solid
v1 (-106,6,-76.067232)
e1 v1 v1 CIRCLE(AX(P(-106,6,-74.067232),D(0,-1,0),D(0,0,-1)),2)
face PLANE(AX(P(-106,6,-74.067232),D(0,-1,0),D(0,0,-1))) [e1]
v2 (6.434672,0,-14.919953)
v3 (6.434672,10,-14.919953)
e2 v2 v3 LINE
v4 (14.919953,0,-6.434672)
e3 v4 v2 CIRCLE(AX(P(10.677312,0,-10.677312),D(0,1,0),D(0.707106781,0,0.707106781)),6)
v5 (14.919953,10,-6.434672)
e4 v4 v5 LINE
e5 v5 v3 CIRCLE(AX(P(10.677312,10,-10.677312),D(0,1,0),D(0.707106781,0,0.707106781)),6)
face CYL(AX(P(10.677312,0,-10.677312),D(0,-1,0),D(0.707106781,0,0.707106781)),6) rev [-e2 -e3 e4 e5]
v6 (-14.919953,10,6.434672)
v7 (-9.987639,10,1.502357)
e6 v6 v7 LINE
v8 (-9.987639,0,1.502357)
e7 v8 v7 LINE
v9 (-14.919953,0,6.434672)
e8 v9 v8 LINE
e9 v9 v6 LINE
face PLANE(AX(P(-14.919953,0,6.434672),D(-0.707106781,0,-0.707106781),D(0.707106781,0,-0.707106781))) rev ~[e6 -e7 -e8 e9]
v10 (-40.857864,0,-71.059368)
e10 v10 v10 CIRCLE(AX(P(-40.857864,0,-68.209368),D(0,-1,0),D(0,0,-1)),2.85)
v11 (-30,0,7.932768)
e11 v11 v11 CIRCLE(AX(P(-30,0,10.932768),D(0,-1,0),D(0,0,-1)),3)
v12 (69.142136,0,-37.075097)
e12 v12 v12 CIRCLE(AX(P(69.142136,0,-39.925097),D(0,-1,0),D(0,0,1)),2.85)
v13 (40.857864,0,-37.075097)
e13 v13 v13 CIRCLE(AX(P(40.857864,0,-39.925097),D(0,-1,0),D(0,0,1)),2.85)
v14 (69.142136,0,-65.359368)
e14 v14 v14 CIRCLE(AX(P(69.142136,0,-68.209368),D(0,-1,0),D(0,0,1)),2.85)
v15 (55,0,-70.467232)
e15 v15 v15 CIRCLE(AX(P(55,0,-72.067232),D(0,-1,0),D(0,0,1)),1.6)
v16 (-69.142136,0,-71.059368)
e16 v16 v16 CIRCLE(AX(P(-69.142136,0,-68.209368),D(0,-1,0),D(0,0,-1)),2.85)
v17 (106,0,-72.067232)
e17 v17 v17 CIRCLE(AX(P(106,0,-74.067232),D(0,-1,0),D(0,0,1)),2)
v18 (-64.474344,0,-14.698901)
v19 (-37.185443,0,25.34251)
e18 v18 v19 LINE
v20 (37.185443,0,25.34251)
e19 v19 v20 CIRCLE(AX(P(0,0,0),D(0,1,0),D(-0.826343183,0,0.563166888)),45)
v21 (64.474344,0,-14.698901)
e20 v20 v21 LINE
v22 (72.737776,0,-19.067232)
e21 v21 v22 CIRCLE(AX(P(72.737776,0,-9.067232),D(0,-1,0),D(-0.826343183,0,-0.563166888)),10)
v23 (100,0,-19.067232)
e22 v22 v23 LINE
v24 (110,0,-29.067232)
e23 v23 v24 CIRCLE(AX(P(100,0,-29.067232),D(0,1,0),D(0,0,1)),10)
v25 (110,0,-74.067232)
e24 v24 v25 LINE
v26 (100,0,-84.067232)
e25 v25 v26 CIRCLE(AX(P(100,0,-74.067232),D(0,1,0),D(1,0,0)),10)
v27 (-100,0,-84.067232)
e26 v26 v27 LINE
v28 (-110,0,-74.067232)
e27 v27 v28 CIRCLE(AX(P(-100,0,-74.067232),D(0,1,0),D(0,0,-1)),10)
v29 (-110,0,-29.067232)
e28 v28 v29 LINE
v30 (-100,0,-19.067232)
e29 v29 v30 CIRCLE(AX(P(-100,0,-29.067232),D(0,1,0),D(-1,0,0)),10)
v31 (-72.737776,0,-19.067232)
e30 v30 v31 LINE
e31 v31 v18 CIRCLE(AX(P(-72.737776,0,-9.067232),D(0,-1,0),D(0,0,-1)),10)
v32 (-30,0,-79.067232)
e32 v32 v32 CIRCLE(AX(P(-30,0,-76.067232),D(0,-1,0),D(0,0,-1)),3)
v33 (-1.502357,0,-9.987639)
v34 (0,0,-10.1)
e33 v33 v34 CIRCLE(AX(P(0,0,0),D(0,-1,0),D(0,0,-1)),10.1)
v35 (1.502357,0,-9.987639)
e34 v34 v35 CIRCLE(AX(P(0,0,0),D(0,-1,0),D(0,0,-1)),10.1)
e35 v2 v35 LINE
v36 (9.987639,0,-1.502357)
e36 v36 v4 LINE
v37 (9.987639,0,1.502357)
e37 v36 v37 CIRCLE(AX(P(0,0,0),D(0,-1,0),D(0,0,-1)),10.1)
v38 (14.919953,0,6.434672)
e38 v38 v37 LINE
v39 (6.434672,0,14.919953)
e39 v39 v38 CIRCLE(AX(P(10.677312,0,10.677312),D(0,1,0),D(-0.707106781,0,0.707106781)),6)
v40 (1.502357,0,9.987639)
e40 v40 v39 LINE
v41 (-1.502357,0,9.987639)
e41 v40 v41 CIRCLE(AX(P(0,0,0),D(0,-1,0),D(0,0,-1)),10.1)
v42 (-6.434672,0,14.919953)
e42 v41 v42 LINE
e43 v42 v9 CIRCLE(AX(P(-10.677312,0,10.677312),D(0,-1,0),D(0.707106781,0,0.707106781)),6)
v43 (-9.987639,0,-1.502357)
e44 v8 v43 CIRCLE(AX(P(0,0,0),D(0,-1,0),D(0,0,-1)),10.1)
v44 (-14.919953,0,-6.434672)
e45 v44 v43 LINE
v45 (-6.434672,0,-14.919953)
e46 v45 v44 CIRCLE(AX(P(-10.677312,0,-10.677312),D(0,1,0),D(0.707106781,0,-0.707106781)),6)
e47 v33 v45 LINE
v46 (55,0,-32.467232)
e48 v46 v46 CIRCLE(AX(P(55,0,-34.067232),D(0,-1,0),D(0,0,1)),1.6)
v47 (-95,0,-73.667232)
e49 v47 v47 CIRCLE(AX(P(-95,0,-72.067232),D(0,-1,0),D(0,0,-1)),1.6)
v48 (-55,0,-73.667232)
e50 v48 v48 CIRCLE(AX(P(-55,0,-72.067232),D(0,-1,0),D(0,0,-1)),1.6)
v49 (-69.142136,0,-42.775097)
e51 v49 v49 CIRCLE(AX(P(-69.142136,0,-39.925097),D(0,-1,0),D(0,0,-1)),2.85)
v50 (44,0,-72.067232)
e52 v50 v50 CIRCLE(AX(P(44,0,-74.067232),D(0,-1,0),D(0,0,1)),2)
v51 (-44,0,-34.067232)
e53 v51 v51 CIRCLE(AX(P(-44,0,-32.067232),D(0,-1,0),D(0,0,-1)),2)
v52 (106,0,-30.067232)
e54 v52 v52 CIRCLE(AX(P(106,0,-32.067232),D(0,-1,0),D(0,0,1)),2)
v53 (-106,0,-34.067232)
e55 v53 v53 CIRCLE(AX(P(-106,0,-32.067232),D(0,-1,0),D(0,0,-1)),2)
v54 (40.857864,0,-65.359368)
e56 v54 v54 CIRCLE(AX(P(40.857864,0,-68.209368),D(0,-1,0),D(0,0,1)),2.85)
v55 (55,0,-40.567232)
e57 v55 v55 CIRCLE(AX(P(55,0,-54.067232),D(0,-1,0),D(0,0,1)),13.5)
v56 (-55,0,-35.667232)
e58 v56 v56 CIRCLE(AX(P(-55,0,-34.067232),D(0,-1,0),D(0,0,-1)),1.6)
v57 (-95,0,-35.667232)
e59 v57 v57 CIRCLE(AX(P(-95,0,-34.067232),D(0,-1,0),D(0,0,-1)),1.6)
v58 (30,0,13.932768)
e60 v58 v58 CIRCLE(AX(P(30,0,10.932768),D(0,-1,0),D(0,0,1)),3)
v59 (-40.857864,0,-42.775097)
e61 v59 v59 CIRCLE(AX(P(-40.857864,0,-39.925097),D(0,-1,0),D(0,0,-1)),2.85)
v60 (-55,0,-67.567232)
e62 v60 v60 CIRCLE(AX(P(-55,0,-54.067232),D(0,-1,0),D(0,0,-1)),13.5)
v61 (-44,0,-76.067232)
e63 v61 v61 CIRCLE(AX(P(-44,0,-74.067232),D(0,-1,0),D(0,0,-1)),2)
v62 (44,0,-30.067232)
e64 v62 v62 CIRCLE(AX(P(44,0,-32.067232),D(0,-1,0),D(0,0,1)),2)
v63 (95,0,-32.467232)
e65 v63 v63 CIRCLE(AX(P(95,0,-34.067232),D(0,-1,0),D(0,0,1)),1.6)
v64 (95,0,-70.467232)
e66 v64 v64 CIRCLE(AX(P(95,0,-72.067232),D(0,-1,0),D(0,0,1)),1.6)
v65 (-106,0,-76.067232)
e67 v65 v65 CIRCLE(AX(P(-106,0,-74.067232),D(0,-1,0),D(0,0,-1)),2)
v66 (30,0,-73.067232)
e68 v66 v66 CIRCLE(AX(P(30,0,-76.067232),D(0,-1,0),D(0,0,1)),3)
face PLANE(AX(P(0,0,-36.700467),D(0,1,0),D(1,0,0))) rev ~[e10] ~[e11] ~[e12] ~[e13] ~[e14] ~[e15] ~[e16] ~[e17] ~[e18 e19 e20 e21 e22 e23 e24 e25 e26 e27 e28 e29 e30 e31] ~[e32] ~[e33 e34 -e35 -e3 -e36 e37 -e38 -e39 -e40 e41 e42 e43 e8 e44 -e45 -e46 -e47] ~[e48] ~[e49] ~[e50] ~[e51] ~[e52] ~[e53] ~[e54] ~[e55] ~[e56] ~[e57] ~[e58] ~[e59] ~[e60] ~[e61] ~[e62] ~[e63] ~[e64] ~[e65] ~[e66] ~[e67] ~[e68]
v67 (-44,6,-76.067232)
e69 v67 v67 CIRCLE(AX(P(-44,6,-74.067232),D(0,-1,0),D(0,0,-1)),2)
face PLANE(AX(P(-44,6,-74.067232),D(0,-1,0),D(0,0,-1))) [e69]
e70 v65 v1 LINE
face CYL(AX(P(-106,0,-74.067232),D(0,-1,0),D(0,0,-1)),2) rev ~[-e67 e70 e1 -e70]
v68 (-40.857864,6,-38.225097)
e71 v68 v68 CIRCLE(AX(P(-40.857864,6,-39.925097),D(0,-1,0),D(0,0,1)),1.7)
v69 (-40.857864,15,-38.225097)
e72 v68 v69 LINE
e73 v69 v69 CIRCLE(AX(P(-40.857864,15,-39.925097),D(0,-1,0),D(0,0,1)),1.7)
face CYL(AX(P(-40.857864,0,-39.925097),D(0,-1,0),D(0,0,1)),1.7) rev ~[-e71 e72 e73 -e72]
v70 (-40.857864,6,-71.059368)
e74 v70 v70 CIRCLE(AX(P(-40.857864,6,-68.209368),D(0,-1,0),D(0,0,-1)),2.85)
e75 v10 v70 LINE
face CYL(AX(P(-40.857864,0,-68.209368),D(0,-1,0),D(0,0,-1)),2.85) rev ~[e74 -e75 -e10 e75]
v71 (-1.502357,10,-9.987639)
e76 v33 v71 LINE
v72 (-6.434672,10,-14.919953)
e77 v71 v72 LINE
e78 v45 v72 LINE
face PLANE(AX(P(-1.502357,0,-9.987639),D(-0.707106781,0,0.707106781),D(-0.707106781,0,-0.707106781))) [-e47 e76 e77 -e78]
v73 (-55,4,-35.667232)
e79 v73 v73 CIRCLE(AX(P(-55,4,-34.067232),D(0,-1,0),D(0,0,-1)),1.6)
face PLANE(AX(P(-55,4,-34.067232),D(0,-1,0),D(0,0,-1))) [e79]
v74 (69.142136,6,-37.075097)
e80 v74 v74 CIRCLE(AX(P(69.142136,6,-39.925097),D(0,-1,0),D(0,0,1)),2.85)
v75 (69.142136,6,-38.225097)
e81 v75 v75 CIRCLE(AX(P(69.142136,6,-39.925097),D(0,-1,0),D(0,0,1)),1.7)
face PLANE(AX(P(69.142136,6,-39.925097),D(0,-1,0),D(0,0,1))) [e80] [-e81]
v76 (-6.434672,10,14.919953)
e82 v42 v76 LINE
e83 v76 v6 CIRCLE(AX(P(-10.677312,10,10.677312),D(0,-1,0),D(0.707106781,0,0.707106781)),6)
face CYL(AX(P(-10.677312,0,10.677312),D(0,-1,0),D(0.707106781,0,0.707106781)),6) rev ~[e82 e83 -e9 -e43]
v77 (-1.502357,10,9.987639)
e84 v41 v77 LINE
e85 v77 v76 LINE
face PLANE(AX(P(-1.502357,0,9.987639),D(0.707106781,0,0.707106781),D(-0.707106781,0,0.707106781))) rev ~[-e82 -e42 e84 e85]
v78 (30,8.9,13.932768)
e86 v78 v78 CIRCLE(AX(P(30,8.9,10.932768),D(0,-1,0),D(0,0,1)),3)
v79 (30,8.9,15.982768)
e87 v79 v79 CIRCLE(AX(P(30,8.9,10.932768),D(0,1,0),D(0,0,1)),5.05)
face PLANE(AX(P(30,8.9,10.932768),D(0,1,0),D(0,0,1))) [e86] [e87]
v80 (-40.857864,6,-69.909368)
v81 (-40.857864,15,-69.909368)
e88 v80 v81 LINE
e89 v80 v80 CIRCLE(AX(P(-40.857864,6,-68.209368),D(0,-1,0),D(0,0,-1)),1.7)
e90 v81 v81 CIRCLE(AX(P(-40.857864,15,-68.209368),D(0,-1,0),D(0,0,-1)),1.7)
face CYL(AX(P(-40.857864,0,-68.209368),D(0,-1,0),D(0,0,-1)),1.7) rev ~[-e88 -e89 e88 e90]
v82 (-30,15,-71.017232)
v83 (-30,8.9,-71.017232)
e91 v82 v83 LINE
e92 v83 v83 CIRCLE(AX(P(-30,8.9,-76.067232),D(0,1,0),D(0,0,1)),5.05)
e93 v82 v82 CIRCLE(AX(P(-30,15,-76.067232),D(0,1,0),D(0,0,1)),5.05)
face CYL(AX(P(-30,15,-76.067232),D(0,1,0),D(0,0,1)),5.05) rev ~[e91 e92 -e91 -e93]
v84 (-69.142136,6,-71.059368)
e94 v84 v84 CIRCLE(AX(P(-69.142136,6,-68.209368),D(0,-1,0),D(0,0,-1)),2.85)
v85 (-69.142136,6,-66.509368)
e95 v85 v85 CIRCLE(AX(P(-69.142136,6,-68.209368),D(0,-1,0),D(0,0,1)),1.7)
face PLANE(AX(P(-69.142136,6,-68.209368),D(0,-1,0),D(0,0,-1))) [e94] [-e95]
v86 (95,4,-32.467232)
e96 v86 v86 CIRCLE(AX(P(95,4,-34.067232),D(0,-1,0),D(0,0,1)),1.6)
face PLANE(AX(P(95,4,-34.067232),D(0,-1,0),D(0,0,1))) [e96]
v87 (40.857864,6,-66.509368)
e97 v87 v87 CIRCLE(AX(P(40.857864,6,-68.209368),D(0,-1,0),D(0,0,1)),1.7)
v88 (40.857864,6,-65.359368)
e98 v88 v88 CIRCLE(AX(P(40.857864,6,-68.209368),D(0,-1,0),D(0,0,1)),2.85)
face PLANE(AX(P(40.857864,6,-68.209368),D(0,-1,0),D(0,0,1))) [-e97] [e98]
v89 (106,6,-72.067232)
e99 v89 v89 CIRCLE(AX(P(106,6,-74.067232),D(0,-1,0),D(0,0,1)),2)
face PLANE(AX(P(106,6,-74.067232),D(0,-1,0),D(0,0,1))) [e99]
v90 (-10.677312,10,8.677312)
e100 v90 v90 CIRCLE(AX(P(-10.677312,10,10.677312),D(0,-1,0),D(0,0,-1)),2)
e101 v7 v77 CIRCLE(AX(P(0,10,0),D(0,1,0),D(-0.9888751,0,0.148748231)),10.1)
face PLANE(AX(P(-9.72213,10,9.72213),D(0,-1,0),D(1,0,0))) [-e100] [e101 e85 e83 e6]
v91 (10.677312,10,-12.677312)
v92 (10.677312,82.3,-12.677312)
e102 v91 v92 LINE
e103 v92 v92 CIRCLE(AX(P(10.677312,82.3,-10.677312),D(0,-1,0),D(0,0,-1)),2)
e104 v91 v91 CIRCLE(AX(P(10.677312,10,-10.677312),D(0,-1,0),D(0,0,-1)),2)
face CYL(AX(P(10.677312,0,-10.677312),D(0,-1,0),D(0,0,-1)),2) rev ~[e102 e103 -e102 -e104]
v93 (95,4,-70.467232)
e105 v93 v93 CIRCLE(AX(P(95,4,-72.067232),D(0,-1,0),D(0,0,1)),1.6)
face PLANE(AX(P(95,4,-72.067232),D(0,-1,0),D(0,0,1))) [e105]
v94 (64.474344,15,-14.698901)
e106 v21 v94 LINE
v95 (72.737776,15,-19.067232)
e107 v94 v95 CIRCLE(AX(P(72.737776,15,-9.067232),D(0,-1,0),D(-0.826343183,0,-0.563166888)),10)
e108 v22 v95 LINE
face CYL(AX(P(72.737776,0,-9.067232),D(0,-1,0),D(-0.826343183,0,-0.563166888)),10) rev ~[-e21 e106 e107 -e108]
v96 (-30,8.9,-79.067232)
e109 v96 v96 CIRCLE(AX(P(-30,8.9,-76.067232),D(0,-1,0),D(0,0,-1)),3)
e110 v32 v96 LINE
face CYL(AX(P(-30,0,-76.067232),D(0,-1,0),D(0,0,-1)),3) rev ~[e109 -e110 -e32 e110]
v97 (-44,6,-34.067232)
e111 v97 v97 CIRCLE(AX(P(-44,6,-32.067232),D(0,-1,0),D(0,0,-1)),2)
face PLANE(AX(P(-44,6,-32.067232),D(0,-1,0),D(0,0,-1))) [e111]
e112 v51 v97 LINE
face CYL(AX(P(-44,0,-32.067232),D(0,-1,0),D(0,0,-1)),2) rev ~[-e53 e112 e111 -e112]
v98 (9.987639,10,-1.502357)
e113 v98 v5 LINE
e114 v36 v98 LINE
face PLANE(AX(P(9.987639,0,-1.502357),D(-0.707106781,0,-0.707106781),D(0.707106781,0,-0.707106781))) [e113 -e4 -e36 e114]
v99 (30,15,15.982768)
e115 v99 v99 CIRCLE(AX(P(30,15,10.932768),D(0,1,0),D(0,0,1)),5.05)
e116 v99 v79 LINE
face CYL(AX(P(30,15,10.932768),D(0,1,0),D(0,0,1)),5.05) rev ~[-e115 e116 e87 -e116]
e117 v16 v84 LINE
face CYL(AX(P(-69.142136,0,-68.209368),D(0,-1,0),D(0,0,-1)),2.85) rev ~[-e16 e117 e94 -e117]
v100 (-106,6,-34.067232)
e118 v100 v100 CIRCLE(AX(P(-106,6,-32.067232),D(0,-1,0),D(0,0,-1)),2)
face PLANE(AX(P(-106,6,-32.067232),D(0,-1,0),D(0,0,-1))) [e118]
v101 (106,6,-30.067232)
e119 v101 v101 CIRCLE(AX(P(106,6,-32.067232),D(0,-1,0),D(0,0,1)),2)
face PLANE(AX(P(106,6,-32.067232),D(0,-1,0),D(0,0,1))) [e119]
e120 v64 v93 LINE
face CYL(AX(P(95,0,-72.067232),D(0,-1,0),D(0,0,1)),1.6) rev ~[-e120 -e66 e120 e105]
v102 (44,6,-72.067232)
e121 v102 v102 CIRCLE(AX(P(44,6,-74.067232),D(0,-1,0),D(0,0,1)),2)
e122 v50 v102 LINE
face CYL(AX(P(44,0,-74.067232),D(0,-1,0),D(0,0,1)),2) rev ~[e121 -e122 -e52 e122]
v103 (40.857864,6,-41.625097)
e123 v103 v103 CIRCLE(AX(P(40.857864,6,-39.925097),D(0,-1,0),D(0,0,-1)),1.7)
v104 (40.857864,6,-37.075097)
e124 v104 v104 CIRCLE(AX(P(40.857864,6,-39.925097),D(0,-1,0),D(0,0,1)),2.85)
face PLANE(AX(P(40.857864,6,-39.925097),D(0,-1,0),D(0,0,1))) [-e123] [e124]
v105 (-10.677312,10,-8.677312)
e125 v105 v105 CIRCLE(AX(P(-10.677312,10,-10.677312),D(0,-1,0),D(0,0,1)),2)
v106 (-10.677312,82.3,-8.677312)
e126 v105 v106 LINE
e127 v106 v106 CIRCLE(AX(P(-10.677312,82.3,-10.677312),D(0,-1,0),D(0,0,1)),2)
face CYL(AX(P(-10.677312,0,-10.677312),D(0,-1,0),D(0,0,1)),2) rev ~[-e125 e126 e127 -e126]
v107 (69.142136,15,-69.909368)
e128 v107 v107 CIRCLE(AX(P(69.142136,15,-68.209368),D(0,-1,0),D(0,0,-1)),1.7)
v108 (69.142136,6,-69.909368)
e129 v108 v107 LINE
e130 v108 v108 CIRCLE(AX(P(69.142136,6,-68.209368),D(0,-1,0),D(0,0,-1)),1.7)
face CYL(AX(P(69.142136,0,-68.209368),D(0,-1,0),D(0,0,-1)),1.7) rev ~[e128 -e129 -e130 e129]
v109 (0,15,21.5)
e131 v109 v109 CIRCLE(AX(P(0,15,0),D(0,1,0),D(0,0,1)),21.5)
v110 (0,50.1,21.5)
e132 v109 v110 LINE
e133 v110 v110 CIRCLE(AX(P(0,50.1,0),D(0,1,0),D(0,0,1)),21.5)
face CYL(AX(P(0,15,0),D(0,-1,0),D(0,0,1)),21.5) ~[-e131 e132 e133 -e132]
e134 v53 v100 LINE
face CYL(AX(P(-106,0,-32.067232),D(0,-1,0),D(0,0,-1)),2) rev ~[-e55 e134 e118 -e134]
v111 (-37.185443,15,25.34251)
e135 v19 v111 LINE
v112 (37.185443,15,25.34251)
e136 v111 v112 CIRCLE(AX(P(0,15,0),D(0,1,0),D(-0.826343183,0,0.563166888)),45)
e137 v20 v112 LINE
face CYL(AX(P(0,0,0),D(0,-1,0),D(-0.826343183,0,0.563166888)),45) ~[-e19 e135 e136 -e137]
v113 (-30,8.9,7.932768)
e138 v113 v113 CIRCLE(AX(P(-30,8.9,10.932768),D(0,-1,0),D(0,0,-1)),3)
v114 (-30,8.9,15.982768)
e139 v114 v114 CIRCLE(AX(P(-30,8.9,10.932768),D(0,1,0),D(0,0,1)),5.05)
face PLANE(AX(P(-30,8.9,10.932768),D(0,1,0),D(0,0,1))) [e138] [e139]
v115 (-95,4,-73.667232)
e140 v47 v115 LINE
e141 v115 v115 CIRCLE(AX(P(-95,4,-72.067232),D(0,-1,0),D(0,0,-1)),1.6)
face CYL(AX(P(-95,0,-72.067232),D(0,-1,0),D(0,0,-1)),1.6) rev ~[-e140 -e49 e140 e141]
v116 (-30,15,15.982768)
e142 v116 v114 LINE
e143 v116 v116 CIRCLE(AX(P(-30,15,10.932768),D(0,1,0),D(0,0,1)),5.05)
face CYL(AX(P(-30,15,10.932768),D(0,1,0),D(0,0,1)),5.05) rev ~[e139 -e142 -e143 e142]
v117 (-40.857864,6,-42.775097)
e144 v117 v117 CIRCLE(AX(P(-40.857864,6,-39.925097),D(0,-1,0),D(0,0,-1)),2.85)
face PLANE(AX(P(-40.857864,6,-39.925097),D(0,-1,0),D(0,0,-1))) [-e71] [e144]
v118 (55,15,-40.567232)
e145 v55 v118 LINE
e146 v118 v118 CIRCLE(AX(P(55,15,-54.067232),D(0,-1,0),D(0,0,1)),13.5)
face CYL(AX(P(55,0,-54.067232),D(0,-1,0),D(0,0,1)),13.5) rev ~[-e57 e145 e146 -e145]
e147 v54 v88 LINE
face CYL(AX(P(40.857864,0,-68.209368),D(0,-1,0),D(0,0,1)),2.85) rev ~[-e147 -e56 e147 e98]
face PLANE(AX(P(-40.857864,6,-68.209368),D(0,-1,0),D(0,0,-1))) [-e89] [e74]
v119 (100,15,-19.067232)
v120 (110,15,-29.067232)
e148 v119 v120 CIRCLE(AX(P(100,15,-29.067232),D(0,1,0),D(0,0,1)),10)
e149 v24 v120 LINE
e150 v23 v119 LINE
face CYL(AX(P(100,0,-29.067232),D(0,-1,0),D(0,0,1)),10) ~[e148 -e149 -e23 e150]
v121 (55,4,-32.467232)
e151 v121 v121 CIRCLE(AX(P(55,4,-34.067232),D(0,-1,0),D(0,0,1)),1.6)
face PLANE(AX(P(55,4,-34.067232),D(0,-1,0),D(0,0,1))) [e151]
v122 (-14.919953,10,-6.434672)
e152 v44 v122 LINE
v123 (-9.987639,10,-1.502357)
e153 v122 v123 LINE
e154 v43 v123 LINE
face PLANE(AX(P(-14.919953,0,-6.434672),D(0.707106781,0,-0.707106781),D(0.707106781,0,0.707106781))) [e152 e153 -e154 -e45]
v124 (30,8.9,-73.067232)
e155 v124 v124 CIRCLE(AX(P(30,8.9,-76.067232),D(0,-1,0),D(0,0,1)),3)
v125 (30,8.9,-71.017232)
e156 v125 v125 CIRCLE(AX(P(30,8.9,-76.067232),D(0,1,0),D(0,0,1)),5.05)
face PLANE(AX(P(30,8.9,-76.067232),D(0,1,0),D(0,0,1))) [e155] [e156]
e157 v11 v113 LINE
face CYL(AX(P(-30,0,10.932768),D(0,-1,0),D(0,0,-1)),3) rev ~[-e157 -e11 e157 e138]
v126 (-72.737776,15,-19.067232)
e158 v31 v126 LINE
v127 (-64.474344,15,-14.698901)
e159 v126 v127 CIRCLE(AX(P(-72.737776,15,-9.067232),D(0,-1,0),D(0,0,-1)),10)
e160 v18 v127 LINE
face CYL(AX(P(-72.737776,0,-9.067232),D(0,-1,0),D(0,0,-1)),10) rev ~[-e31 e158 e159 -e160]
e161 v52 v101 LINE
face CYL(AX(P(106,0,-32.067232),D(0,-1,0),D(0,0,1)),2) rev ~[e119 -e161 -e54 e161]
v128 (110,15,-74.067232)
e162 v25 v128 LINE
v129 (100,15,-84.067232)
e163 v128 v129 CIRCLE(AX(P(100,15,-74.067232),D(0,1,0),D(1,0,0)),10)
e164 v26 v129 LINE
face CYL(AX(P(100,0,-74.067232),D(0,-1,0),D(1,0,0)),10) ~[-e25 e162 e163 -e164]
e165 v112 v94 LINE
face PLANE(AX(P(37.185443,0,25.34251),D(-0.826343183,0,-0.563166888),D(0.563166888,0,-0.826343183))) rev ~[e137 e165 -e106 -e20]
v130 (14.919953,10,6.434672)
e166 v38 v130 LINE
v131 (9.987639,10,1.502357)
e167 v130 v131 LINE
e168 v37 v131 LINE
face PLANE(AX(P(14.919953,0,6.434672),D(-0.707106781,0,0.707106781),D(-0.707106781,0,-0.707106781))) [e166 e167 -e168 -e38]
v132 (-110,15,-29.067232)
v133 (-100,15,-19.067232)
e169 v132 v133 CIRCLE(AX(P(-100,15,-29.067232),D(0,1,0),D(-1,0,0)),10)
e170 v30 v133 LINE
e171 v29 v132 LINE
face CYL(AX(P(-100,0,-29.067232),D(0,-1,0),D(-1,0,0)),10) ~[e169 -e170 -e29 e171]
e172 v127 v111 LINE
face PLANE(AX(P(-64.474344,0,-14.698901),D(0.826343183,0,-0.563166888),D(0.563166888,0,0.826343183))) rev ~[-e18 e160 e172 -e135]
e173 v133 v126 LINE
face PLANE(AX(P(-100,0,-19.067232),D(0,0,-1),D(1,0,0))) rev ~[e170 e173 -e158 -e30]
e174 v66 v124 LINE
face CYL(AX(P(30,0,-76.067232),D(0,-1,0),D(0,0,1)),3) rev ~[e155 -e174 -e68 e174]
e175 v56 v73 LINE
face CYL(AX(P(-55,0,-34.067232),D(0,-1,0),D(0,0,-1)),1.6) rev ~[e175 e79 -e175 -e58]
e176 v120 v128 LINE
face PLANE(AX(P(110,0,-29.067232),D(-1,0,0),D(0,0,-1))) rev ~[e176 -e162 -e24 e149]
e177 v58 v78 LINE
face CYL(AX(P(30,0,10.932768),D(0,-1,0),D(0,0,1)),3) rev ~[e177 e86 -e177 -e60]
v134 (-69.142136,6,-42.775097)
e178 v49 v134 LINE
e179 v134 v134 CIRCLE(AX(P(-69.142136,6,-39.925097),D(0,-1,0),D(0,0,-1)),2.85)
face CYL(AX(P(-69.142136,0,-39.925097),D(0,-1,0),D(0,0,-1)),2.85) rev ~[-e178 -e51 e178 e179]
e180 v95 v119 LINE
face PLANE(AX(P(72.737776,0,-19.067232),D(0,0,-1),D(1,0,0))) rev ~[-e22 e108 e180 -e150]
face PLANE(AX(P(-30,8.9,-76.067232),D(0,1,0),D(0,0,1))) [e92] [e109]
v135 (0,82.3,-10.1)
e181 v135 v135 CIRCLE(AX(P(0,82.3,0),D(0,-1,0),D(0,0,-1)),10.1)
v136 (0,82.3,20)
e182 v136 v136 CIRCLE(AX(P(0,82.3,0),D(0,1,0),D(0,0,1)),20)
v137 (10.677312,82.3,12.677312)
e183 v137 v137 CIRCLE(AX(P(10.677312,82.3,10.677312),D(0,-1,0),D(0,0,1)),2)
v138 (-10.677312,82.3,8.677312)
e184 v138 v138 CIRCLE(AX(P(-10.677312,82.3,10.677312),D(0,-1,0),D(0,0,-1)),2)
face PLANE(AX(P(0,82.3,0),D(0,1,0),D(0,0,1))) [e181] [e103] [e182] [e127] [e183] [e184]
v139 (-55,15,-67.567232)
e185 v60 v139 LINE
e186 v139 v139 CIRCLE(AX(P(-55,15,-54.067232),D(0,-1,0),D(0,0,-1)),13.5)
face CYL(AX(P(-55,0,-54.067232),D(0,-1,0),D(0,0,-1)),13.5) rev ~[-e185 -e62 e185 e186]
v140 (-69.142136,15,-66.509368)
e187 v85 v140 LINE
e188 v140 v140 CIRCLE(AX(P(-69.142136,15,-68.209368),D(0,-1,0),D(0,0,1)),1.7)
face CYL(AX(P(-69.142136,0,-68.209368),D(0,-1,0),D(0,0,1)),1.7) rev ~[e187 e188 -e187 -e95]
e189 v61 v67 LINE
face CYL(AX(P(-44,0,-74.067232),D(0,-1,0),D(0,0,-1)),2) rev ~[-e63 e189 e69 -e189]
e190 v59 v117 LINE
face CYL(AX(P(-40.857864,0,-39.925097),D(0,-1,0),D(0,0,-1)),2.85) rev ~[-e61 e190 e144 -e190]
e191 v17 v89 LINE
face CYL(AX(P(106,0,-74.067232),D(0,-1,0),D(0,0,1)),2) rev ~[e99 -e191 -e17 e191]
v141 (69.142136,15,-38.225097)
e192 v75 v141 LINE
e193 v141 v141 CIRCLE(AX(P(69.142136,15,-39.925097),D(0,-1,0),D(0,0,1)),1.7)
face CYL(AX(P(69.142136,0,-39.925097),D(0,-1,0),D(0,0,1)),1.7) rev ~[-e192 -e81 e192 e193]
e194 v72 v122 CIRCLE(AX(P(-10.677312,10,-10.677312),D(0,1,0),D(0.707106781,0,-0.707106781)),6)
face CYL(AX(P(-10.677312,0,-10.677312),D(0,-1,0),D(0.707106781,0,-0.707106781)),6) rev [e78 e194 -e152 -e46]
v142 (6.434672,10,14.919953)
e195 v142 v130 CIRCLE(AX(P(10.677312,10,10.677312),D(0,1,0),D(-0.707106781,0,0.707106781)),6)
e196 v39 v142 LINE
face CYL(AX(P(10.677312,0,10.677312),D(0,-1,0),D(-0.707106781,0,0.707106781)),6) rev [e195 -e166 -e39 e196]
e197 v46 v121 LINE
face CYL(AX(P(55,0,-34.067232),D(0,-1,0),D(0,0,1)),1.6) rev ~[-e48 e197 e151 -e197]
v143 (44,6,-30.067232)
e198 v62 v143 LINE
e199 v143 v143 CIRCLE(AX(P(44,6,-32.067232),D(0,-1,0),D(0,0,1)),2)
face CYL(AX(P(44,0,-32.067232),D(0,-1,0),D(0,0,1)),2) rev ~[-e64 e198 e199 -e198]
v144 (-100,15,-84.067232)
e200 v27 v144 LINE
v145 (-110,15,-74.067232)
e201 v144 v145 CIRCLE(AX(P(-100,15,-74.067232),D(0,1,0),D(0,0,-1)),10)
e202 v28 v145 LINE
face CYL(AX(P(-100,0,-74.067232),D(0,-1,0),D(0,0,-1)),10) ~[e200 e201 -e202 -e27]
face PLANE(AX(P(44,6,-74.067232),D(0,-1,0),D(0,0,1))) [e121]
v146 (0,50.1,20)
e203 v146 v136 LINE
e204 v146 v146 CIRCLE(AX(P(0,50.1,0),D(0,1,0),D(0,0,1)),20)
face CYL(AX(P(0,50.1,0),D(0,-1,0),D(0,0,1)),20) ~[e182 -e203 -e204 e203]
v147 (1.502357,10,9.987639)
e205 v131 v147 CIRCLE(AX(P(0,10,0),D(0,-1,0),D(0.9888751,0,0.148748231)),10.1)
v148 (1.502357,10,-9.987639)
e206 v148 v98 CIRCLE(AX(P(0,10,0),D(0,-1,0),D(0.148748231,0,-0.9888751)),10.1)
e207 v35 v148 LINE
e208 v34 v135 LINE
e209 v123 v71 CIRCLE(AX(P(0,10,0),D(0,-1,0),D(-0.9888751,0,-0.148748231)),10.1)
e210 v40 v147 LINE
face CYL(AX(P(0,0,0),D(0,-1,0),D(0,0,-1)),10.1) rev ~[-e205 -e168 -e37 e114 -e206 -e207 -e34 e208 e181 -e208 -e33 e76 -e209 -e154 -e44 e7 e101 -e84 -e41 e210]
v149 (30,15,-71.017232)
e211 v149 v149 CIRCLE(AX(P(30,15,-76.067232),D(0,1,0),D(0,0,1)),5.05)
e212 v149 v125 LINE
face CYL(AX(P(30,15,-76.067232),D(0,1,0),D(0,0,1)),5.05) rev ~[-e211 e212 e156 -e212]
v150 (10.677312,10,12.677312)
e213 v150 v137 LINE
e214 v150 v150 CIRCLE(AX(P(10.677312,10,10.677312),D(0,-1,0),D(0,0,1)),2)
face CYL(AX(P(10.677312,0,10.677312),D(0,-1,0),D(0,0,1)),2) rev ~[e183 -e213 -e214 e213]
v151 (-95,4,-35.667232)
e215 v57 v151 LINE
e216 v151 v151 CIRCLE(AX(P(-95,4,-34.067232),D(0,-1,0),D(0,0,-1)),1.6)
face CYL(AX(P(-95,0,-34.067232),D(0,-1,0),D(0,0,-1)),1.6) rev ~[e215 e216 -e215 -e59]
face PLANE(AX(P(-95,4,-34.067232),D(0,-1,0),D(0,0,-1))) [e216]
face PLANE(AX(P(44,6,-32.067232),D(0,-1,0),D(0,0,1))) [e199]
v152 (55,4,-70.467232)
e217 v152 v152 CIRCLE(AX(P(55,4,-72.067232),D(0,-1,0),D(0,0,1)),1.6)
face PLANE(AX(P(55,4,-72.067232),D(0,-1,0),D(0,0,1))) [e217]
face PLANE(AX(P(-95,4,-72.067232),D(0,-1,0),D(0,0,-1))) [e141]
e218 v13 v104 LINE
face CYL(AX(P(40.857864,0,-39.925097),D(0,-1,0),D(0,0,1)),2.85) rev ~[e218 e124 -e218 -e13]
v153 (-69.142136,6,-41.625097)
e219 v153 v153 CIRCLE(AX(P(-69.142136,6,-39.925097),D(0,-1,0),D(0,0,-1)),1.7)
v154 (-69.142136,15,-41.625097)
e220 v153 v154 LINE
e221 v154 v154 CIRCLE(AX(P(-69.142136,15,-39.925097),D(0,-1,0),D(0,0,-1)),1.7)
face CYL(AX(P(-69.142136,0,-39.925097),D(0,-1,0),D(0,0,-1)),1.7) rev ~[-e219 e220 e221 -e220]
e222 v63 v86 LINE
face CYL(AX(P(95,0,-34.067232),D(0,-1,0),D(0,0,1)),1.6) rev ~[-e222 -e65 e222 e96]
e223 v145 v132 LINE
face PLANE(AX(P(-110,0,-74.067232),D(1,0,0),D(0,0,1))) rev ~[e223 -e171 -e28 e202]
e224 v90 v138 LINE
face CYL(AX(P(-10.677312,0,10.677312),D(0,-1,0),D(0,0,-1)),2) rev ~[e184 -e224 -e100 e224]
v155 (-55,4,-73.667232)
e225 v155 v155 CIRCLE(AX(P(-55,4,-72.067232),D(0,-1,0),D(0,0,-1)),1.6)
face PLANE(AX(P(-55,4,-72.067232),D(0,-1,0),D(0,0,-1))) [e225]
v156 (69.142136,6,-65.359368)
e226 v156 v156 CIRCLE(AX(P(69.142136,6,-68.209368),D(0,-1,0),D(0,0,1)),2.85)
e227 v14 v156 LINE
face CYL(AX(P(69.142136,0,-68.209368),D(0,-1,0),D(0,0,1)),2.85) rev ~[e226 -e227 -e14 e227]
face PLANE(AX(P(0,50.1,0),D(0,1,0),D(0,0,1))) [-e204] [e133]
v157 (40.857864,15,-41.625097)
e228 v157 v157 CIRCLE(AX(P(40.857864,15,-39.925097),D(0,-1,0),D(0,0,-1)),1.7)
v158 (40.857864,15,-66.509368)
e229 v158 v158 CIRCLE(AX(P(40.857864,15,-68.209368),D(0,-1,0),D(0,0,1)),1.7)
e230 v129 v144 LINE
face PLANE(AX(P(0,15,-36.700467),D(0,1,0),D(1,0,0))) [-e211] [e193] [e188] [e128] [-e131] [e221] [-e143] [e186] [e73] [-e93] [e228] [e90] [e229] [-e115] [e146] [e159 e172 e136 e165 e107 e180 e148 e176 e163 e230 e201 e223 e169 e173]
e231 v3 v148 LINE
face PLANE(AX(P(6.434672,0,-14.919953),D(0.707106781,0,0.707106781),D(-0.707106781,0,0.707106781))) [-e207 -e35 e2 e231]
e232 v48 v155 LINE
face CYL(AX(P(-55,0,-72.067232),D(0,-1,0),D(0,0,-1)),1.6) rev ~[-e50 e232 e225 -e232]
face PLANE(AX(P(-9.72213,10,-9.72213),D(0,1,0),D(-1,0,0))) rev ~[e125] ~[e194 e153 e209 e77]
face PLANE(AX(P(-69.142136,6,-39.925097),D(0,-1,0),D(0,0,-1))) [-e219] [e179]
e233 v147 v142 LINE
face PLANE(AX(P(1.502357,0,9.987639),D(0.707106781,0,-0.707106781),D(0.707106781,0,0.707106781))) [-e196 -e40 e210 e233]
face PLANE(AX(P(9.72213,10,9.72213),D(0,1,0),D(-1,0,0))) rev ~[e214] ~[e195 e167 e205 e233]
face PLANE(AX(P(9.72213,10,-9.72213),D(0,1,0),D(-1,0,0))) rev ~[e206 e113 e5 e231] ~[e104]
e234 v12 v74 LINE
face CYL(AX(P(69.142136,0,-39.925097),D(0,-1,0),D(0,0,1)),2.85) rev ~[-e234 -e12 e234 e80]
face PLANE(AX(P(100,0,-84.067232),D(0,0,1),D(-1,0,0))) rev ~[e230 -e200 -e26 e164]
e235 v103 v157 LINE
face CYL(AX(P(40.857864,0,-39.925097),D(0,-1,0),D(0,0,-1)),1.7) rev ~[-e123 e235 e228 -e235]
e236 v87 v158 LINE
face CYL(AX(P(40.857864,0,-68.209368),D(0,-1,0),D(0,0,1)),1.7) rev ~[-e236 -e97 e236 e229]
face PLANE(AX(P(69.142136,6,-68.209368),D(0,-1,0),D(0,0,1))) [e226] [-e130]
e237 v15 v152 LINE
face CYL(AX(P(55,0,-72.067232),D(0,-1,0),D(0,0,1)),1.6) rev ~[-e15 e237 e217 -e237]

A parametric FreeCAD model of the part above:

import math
import FreeCAD as App
import Part
import Sketcher
from FreeCAD import Vector
Q = App.Units.Quantity

doc = App.newDocument("Part")
body = doc.addObject("PartDesign::Body", "Body")

# Sketch on XZ plane
sketch1 = body.newObject("Sketcher::SketchObject", "Sketch")
sketch1.AttachmentSupport = (doc.getObject("XZ_Plane"), [""])
sketch1.MapMode = "FlatFace"
sketch1.addGeometry([
    Part.ArcOfCircle(Part.Circle(Vector(-100, -74, 0), Vector(0, 0, 1), 10), math.radians(180), math.radians(270)),  # 0
    Part.LineSegment(Vector(-110, -74, 0), Vector(-110, -29, 0)),  # 1
    Part.ArcOfCircle(Part.Circle(Vector(-100, -29, 0), Vector(0, 0, 1), 10), math.radians(90), math.radians(180)),  # 2
    Part.LineSegment(Vector(-100, -19, 0), Vector(-73, -19, 0)),  # 3
    Part.ArcOfCircle(Part.Circle(Vector(-73, -9, 0), Vector(0, 0, 1), 10), math.radians(-90), math.radians(-34)),  # 4
    Part.LineSegment(Vector(-64, -15, 0), Vector(-37, 25, 0)),  # 5
    Part.ArcOfCircle(Part.Circle(Vector(0, 0, 0), Vector(0, 0, 1), 45), math.radians(34), math.radians(146)),  # 6
    Part.LineSegment(Vector(37, 25, 0), Vector(64, -15, 0)),  # 7
    Part.ArcOfCircle(Part.Circle(Vector(73, -9, 0), Vector(0, 0, 1), 10), math.radians(-146), math.radians(-90)),  # 8
    Part.LineSegment(Vector(73, -19, 0), Vector(100, -19, 0)),  # 9
    Part.ArcOfCircle(Part.Circle(Vector(100, -29, 0), Vector(0, 0, 1), 10), math.radians(0), math.radians(90)),  # 10
    Part.LineSegment(Vector(110, -29, 0), Vector(110, -74, 0)),  # 11
    Part.ArcOfCircle(Part.Circle(Vector(100, -74, 0), Vector(0, 0, 1), 10), math.radians(-90), math.radians(0)),  # 12
    Part.LineSegment(Vector(100, -84, 0), Vector(-100, -84, 0)),  # 13
], False)
sketch1.addConstraint([
    Sketcher.Constraint("Tangent", 0, 1, 1, 1),
    Sketcher.Constraint("Tangent", 1, 2, 2, 2),
    Sketcher.Constraint("Tangent", 2, 1, 3, 1),
    Sketcher.Constraint("Tangent", 3, 2, 4, 1),
    Sketcher.Constraint("Tangent", 4, 2, 5, 1),
    Sketcher.Constraint("Tangent", 5, 2, 6, 2),
    Sketcher.Constraint("Tangent", 6, 1, 7, 1),
    Sketcher.Constraint("Tangent", 7, 2, 8, 1),
    Sketcher.Constraint("Tangent", 8, 2, 9, 1),
    Sketcher.Constraint("Tangent", 9, 2, 10, 2),
    Sketcher.Constraint("Tangent", 10, 1, 11, 1),
    Sketcher.Constraint("Tangent", 11, 2, 12, 2),
    Sketcher.Constraint("Tangent", 12, 1, 13, 1),
    Sketcher.Constraint("Tangent", 13, 2, 0, 2),
    Sketcher.Constraint("Vertical", 1),
    Sketcher.Constraint("Horizontal", 3),
    Sketcher.Constraint("Horizontal", 9),
    Sketcher.Constraint("Vertical", 11),
    Sketcher.Constraint("Horizontal", 13),
    Sketcher.Constraint("Coincident", 6, 3, -1, 1),
    Sketcher.Constraint("Equal", 0, 2),
    Sketcher.Constraint("Equal", 2, 4),
    Sketcher.Constraint("Equal", 4, 8),
    Sketcher.Constraint("Equal", 8, 10),
    Sketcher.Constraint("Equal", 10, 12),
    Sketcher.Constraint("Symmetric", 4, 3, 8, 3, -2),
    Sketcher.Constraint("Equal", 3, 9),
    Sketcher.Constraint("Radius", 0, Q("10 mm")),
    Sketcher.Constraint("Radius", 6, Q("45 mm")),
    Sketcher.Constraint("DistanceX", 13, 2, 13, 1, Q("200 mm")),
    Sketcher.Constraint("DistanceY", 1, 1, 1, 2, Q("45 mm")),
    Sketcher.Constraint("DistanceY", 4, 2, -1, 1, Q("14.698901 mm")),
    Sketcher.Constraint("DistanceX", 4, 2, 5, 2, Q("27.288901 mm")),
])
pad1 = body.newObject("PartDesign::Pad", "Pad")
pad1.Profile = sketch1
pad1.Length = 15
pad1.Reversed = True

# Sketch on XZ plane
sketch2 = body.newObject("Sketcher::SketchObject", "Sketch001")
sketch2.AttachmentSupport = (doc.getObject("XZ_Plane"), [""])
sketch2.MapMode = "FlatFace"
sketch2.AttachmentOffset = App.Placement(Vector(0, 0, -15), App.Rotation())
sketch2.addGeometry(Part.Circle(Vector(0, 0, 0), Vector(0, 0, 1), 22), False)
sketch2.addConstraint([
    Sketcher.Constraint("Coincident", 0, 3, -1, 1),
    Sketcher.Constraint("Diameter", 0, Q("43 mm")),
])
pad2 = body.newObject("PartDesign::Pad", "Pad001")
pad2.Profile = sketch2
pad2.Length = 67.3
pad2.Reversed = True

# Sketch on XZ plane
sketch3 = body.newObject("Sketcher::SketchObject", "Sketch002")
sketch3.AttachmentSupport = (doc.getObject("XZ_Plane"), [""])
sketch3.MapMode = "FlatFace"
sketch3.addGeometry([
    Part.Circle(Vector(0, 0, 0), Vector(0, 0, 1), 10.1),  # 0
    Part.Circle(Vector(-55, -54.1, 0), Vector(0, 0, 1), 13.5),  # 1
    Part.Circle(Vector(-10.7, 10.7, 0), Vector(0, 0, 1), 2),  # 2
    Part.Circle(Vector(-10.7, -10.7, 0), Vector(0, 0, 1), 2),  # 3
    Part.Circle(Vector(-69.1, -39.9, 0), Vector(0, 0, 1), 1.7),  # 4
    Part.Circle(Vector(-69.1, -68.2, 0), Vector(0, 0, 1), 1.7),  # 5
    Part.Circle(Vector(-40.9, -68.2, 0), Vector(0, 0, 1), 1.7),  # 6
    Part.Circle(Vector(-40.9, -39.9, 0), Vector(0, 0, 1), 1.7),  # 7
    Part.Circle(Vector(55, -54.1, 0), Vector(0, 0, 1), 13.5),  # 8
    Part.Circle(Vector(69.1, -68.2, 0), Vector(0, 0, 1), 1.7),  # 9
    Part.Circle(Vector(40.9, -68.2, 0), Vector(0, 0, 1), 1.7),  # 10
    Part.Circle(Vector(40.9, -39.9, 0), Vector(0, 0, 1), 1.7),  # 11
    Part.Circle(Vector(69.1, -39.9, 0), Vector(0, 0, 1), 1.7),  # 12
    Part.Circle(Vector(10.7, -10.7, 0), Vector(0, 0, 1), 2),  # 13
    Part.Circle(Vector(10.7, 10.7, 0), Vector(0, 0, 1), 2),  # 14
    Part.Circle(Vector(-30, -76.1, 0), Vector(0, 0, 1), 3),  # 15
    Part.Circle(Vector(-30, 10.9, 0), Vector(0, 0, 1), 3),  # 16
    Part.Circle(Vector(30, -76.1, 0), Vector(0, 0, 1), 3),  # 17
    Part.Circle(Vector(30, 10.9, 0), Vector(0, 0, 1), 3),  # 18
], False)
sketch3.addConstraint([
    Sketcher.Constraint("Coincident", 0, 3, -1, 1),
    Sketcher.Constraint("Equal", 2, 3),
    Sketcher.Constraint("Equal", 4, 5),
    Sketcher.Constraint("Equal", 5, 6),
    Sketcher.Constraint("Equal", 6, 7),
    Sketcher.Constraint("Equal", 1, 8),
    Sketcher.Constraint("Equal", 7, 9),
    Sketcher.Constraint("Equal", 9, 10),
    Sketcher.Constraint("Equal", 10, 11),
    Sketcher.Constraint("Equal", 11, 12),
    Sketcher.Constraint("Equal", 3, 13),
    Sketcher.Constraint("Equal", 13, 14),
    Sketcher.Constraint("Equal", 15, 16),
    Sketcher.Constraint("Equal", 16, 17),
    Sketcher.Constraint("Equal", 17, 18),
    Sketcher.Constraint("Symmetric", 2, 3, 13, 3, -1, 1),
    Sketcher.Constraint("Symmetric", 3, 3, 14, 3, -1, 1),
    Sketcher.Constraint("Symmetric", 1, 3, 8, 3, -2),
    Sketcher.Constraint("Symmetric", 5, 3, 9, 3, -2),
    Sketcher.Constraint("Symmetric", 6, 3, 10, 3, -2),
    Sketcher.Constraint("Symmetric", 7, 3, 11, 3, -2),
    Sketcher.Constraint("Symmetric", 4, 3, 12, 3, -2),
    Sketcher.Constraint("Symmetric", 3, 3, 13, 3, -2),
    Sketcher.Constraint("Symmetric", 15, 3, 17, 3, -2),
    Sketcher.Constraint("Symmetric", 16, 3, 18, 3, -2),
    Sketcher.Constraint("Horizontal", 5, 3, 6, 3),
    Sketcher.Constraint("Horizontal", 4, 3, 7, 3),
    Sketcher.Constraint("Vertical", 4, 3, 5, 3),
    Sketcher.Constraint("Vertical", 6, 3, 7, 3),
    Sketcher.Constraint("Vertical", 15, 3, 16, 3),
    Sketcher.Constraint("Diameter", 1, Q("27 mm")),
    Sketcher.Constraint("Diameter", 2, Q("4 mm")),
    Sketcher.Constraint("Diameter", 15, Q("6 mm")),
    Sketcher.Constraint("Diameter", 0, Q("20.2 mm")),
    Sketcher.Constraint("Diameter", 4, Q("3.4 mm")),
    Sketcher.Constraint("DistanceX", 1, 3, -1, 1, Q("55 mm")),
    Sketcher.Constraint("DistanceX", 15, 3, -1, 1, Q("30 mm")),
    Sketcher.Constraint("DistanceX", 6, 3, 9, 3, Q("110 mm")),
    Sketcher.Constraint("DistanceY", 15, 3, 1, 3, Q("22 mm")),
    Sketcher.Constraint("DistanceY", 5, 3, -1, 1, Q("68.209368 mm")),
    Sketcher.Constraint("DistanceY", 1, 3, 3, 3, Q("43.38992 mm")),
    Sketcher.Constraint("DistanceY", 4, 3, 2, 3, Q("50.602409 mm")),
    Sketcher.Constraint("DistanceY", 5, 3, 4, 3, Q("28.284271 mm")),
    Sketcher.Constraint("DistanceX", 5, 3, 6, 3, Q("28.284271 mm")),
    Sketcher.Constraint("DistanceX", 6, 3, 3, 3, Q("30.180552 mm")),
    Sketcher.Constraint("DistanceY", 3, 3, 16, 3, Q("21.61008 mm")),
])
pocket1 = body.newObject("PartDesign::Pocket", "Pocket")
pocket1.Profile = sketch3
pocket1.Type = "ThroughAll"

# Sketch on XZ plane
sketch4 = body.newObject("Sketcher::SketchObject", "Sketch003")
sketch4.AttachmentSupport = (doc.getObject("XZ_Plane"), [""])
sketch4.MapMode = "FlatFace"
sketch4.addGeometry([
    Part.LineSegment(Vector(-15, 6, 0), Vector(-10, 2, 0)),  # 0
    Part.ArcOfCircle(Part.Circle(Vector(0, 0, 0), Vector(0, 0, 1), 10), math.radians(99), math.radians(171)),  # 1
    Part.LineSegment(Vector(-2, 10, 0), Vector(-6, 15, 0)),  # 2
    Part.ArcOfCircle(Part.Circle(Vector(-11, 11, 0), Vector(0, 0, 1), 6), math.radians(45), math.radians(225)),  # 3
    Part.LineSegment(Vector(-10, -2, 0), Vector(-15, -6, 0)),  # 4
    Part.ArcOfCircle(Part.Circle(Vector(-11, -11, 0), Vector(0, 0, 1), 6), math.radians(135), math.radians(315)),  # 5
    Part.LineSegment(Vector(-6, -15, 0), Vector(-2, -10, 0)),  # 6
    Part.ArcOfCircle(Part.Circle(Vector(0, 0, 0), Vector(0, 0, 1), 10), math.radians(-171), math.radians(-99)),  # 7
    Part.LineSegment(Vector(2, -10, 0), Vector(6, -15, 0)),  # 8
    Part.ArcOfCircle(Part.Circle(Vector(11, -11, 0), Vector(0, 0, 1), 6), math.radians(-135), math.radians(45)),  # 9
    Part.LineSegment(Vector(15, -6, 0), Vector(10, -2, 0)),  # 10
    Part.ArcOfCircle(Part.Circle(Vector(0, 0, 0), Vector(0, 0, 1), 10), math.radians(-81), math.radians(-9)),  # 11
    Part.LineSegment(Vector(10, 2, 0), Vector(15, 6, 0)),  # 12
    Part.ArcOfCircle(Part.Circle(Vector(11, 11, 0), Vector(0, 0, 1), 6), math.radians(-45), math.radians(135)),  # 13
    Part.LineSegment(Vector(6, 15, 0), Vector(2, 10, 0)),  # 14
    Part.ArcOfCircle(Part.Circle(Vector(0, 0, 0), Vector(0, 0, 1), 10), math.radians(9), math.radians(81)),  # 15
], False)
sketch4.addConstraint([
    Sketcher.Constraint("Coincident", 0, 2, 1, 2),
    Sketcher.Constraint("Coincident", 1, 1, 2, 1),
    Sketcher.Constraint("Tangent", 2, 2, 3, 1),
    Sketcher.Constraint("Tangent", 3, 2, 0, 1),
    Sketcher.Constraint("Tangent", 4, 2, 5, 1),
    Sketcher.Constraint("Tangent", 5, 2, 6, 1),
    Sketcher.Constraint("Coincident", 6, 2, 7, 2),
    Sketcher.Constraint("Coincident", 7, 1, 4, 1),
    Sketcher.Constraint("Tangent", 8, 2, 9, 1),
    Sketcher.Constraint("Tangent", 9, 2, 10, 1),
    Sketcher.Constraint("Coincident", 10, 2, 11, 2),
    Sketcher.Constraint("Coincident", 11, 1, 8, 1),
    Sketcher.Constraint("Tangent", 12, 2, 13, 1),
    Sketcher.Constraint("Tangent", 13, 2, 14, 1),
    Sketcher.Constraint("Coincident", 14, 2, 15, 2),
    Sketcher.Constraint("Coincident", 15, 1, 12, 1),
    Sketcher.Constraint("Coincident", 1, 3, -1, 1),
    Sketcher.Constraint("Coincident", 7, 3, -1, 1),
    Sketcher.Constraint("Coincident", 11, 3, -1, 1),
    Sketcher.Constraint("Coincident", 15, 3, -1, 1),
    Sketcher.Constraint("Equal", 3, 5),
    Sketcher.Constraint("Equal", 1, 7),
    Sketcher.Constraint("Equal", 5, 9),
    Sketcher.Constraint("Equal", 7, 11),
    Sketcher.Constraint("Equal", 9, 13),
    Sketcher.Constraint("Equal", 11, 15),
    Sketcher.Constraint("Symmetric", 3, 3, 9, 3, -1, 1),
    Sketcher.Constraint("Symmetric", 5, 3, 13, 3, -1, 1),
    Sketcher.Constraint("Symmetric", 5, 3, 9, 3, -2),
    Sketcher.Constraint("Parallel", 0, 2),
    Sketcher.Constraint("Perpendicular", 2, 4),
    Sketcher.Constraint("Parallel", 4, 6),
    Sketcher.Constraint("Perpendicular", 6, 8),
    Sketcher.Constraint("Parallel", 8, 10),
    Sketcher.Constraint("Perpendicular", 10, 12),
    Sketcher.Constraint("Parallel", 12, 14),
    Sketcher.Constraint("Horizontal", 5, 2, 8, 2),
    Sketcher.Constraint("Equal", 0, 2),
    Sketcher.Constraint("Radius", 3, Q("6 mm")),
    Sketcher.Constraint("Radius", 1, Q("10.1 mm")),
    Sketcher.Constraint("DistanceX", 2, 2, -1, 1, Q("6.434672 mm")),
])
pocket2 = body.newObject("PartDesign::Pocket", "Pocket001")
pocket2.Profile = sketch4
pocket2.Length = 10

# Sketch on XZ plane
sketch5 = body.newObject("Sketcher::SketchObject", "Sketch004")
sketch5.AttachmentSupport = (doc.getObject("XZ_Plane"), [""])
sketch5.MapMode = "FlatFace"
sketch5.AttachmentOffset = App.Placement(Vector(0, 0, -15), App.Rotation())
sketch5.addGeometry([
    Part.Circle(Vector(30, -76, 0), Vector(0, 0, 1), 5),
    Part.Circle(Vector(-30, -76, 0), Vector(0, 0, 1), 5),
    Part.Circle(Vector(-30, 11, 0), Vector(0, 0, 1), 5),
    Part.Circle(Vector(30, 11, 0), Vector(0, 0, 1), 5),
], False)
sketch5.addConstraint([
    Sketcher.Constraint("Equal", 0, 1),
    Sketcher.Constraint("Equal", 1, 2),
    Sketcher.Constraint("Equal", 2, 3),
    Sketcher.Constraint("Symmetric", 0, 3, 1, 3, -2),
    Sketcher.Constraint("Symmetric", 2, 3, 3, 3, -2),
    Sketcher.Constraint("Vertical", 1, 3, 2, 3),
    Sketcher.Constraint("Diameter", 0, Q("10.1 mm")),
    Sketcher.Constraint("DistanceX", -1, 1, 0, 3, Q("30 mm")),
    Sketcher.Constraint("DistanceY", 1, 3, 2, 3, Q("87 mm")),
    Sketcher.Constraint("DistanceY", 0, 3, -1, 1, Q("76.067232 mm")),
])
pocket3 = body.newObject("PartDesign::Pocket", "Pocket002")
pocket3.Profile = sketch5
pocket3.Length = 6.1
pocket3.Reversed = True

# Sketch on XZ plane
sketch6 = body.newObject("Sketcher::SketchObject", "Sketch005")
sketch6.AttachmentSupport = (doc.getObject("XZ_Plane"), [""])
sketch6.MapMode = "FlatFace"
sketch6.AttachmentOffset = App.Placement(Vector(0, 0, -50.1), App.Rotation())
sketch6.addGeometry([
    Part.Circle(Vector(0, 0, 0), Vector(0, 0, 1), 22),
    Part.Circle(Vector(0, 0, 0), Vector(0, 0, 1), 20),
], False)
sketch6.addConstraint([
    Sketcher.Constraint("Coincident", 0, 3, -1, 1),
    Sketcher.Constraint("Coincident", 1, 3, -1, 1),
    Sketcher.Constraint("Diameter", 0, Q("43 mm")),
    Sketcher.Constraint("Diameter", 1, Q("40 mm")),
])
pocket4 = body.newObject("PartDesign::Pocket", "Pocket003")
pocket4.Profile = sketch6
pocket4.Length = 32.2

# Sketch on XZ plane
sketch7 = body.newObject("Sketcher::SketchObject", "Sketch006")
sketch7.AttachmentSupport = (doc.getObject("XZ_Plane"), [""])
sketch7.MapMode = "FlatFace"
sketch7.addGeometry([
    Part.Circle(Vector(-69.1, -39.9, 0), Vector(0, 0, 1), 2.9),  # 0
    Part.Circle(Vector(-40.9, -39.9, 0), Vector(0, 0, 1), 2.9),  # 1
    Part.Circle(Vector(-40.9, -68.2, 0), Vector(0, 0, 1), 2.9),  # 2
    Part.Circle(Vector(-69.1, -68.2, 0), Vector(0, 0, 1), 2.9),  # 3
    Part.Circle(Vector(40.9, -68.2, 0), Vector(0, 0, 1), 2.9),  # 4
    Part.Circle(Vector(40.9, -39.9, 0), Vector(0, 0, 1), 2.9),  # 5
    Part.Circle(Vector(69.1, -68.2, 0), Vector(0, 0, 1), 2.9),  # 6
    Part.Circle(Vector(69.1, -39.9, 0), Vector(0, 0, 1), 2.9),  # 7
], False)
sketch7.addConstraint([
    Sketcher.Constraint("Equal", 0, 1),
    Sketcher.Constraint("Equal", 1, 2),
    Sketcher.Constraint("Equal", 2, 3),
    Sketcher.Constraint("Equal", 3, 4),
    Sketcher.Constraint("Equal", 4, 5),
    Sketcher.Constraint("Equal", 5, 6),
    Sketcher.Constraint("Equal", 6, 7),
    Sketcher.Constraint("Symmetric", 2, 3, 4, 3, -2),
    Sketcher.Constraint("Symmetric", 1, 3, 5, 3, -2),
    Sketcher.Constraint("Symmetric", 3, 3, 6, 3, -2),
    Sketcher.Constraint("Symmetric", 0, 3, 7, 3, -2),
    Sketcher.Constraint("Horizontal", 0, 3, 1, 3),
    Sketcher.Constraint("Horizontal", 2, 3, 3, 3),
    Sketcher.Constraint("Vertical", 1, 3, 2, 3),
    Sketcher.Constraint("Vertical", 0, 3, 3, 3),
    Sketcher.Constraint("Diameter", 0, Q("5.7 mm")),
    Sketcher.Constraint("DistanceX", 3, 3, 4, 3, Q("110 mm")),
    Sketcher.Constraint("DistanceY", 2, 3, -1, 1, Q("68.209368 mm")),
    Sketcher.Constraint("DistanceX", 0, 3, 1, 3, Q("28.284271 mm")),
    Sketcher.Constraint("DistanceY", 2, 3, 1, 3, Q("28.284271 mm")),
])
pocket5 = body.newObject("PartDesign::Pocket", "Pocket004")
pocket5.Profile = sketch7
pocket5.Length = 6

# Sketch on XZ plane
sketch8 = body.newObject("Sketcher::SketchObject", "Sketch007")
sketch8.AttachmentSupport = (doc.getObject("XZ_Plane"), [""])
sketch8.MapMode = "FlatFace"
sketch8.addGeometry([
    Part.Circle(Vector(-106, -74.1, 0), Vector(0, 0, 1), 2),  # 0
    Part.Circle(Vector(-106, -32.1, 0), Vector(0, 0, 1), 2),  # 1
    Part.Circle(Vector(-44, -32.1, 0), Vector(0, 0, 1), 2),  # 2
    Part.Circle(Vector(-44, -74.1, 0), Vector(0, 0, 1), 2),  # 3
    Part.Circle(Vector(44, -74.1, 0), Vector(0, 0, 1), 2),  # 4
    Part.Circle(Vector(106, -74.1, 0), Vector(0, 0, 1), 2),  # 5
    Part.Circle(Vector(44, -32.1, 0), Vector(0, 0, 1), 2),  # 6
    Part.Circle(Vector(106, -32.1, 0), Vector(0, 0, 1), 2),  # 7
], False)
sketch8.addConstraint([
    Sketcher.Constraint("Equal", 0, 1),
    Sketcher.Constraint("Equal", 1, 2),
    Sketcher.Constraint("Equal", 2, 3),
    Sketcher.Constraint("Equal", 3, 4),
    Sketcher.Constraint("Equal", 4, 5),
    Sketcher.Constraint("Equal", 5, 6),
    Sketcher.Constraint("Equal", 6, 7),
    Sketcher.Constraint("Symmetric", 3, 3, 4, 3, -2),
    Sketcher.Constraint("Symmetric", 0, 3, 5, 3, -2),
    Sketcher.Constraint("Symmetric", 2, 3, 6, 3, -2),
    Sketcher.Constraint("Symmetric", 1, 3, 7, 3, -2),
    Sketcher.Constraint("Horizontal", 1, 3, 2, 3),
    Sketcher.Constraint("Horizontal", 0, 3, 3, 3),
    Sketcher.Constraint("Vertical", 0, 3, 1, 3),
    Sketcher.Constraint("Vertical", 2, 3, 3, 3),
    Sketcher.Constraint("Diameter", 0, Q("4 mm")),
    Sketcher.Constraint("DistanceX", 0, 3, -1, 1, Q("106 mm")),
    Sketcher.Constraint("DistanceX", 2, 3, -1, 1, Q("44 mm")),
    Sketcher.Constraint("DistanceY", 0, 3, 1, 3, Q("42 mm")),
    Sketcher.Constraint("DistanceY", 0, 3, -1, 1, Q("74.067232 mm")),
])
pocket6 = body.newObject("PartDesign::Pocket", "Pocket005")
pocket6.Profile = sketch8
pocket6.Length = 6

# Sketch on XZ plane
sketch9 = body.newObject("Sketcher::SketchObject", "Sketch008")
sketch9.AttachmentSupport = (doc.getObject("XZ_Plane"), [""])
sketch9.MapMode = "FlatFace"
sketch9.addGeometry([
    Part.Circle(Vector(-95, -72.1, 0), Vector(0, 0, 1), 1.6),  # 0
    Part.Circle(Vector(-95, -34.1, 0), Vector(0, 0, 1), 1.6),  # 1
    Part.Circle(Vector(-55, -34.1, 0), Vector(0, 0, 1), 1.6),  # 2
    Part.Circle(Vector(-55, -72.1, 0), Vector(0, 0, 1), 1.6),  # 3
    Part.Circle(Vector(95, -72.1, 0), Vector(0, 0, 1), 1.6),  # 4
    Part.Circle(Vector(55, -72.1, 0), Vector(0, 0, 1), 1.6),  # 5
    Part.Circle(Vector(55, -34.1, 0), Vector(0, 0, 1), 1.6),  # 6
    Part.Circle(Vector(95, -34.1, 0), Vector(0, 0, 1), 1.6),  # 7
], False)
sketch9.addConstraint([
    Sketcher.Constraint("Equal", 0, 1),
    Sketcher.Constraint("Equal", 1, 2),
    Sketcher.Constraint("Equal", 2, 3),
    Sketcher.Constraint("Equal", 3, 4),
    Sketcher.Constraint("Equal", 4, 5),
    Sketcher.Constraint("Equal", 5, 6),
    Sketcher.Constraint("Equal", 6, 7),
    Sketcher.Constraint("Symmetric", 0, 3, 4, 3, -2),
    Sketcher.Constraint("Symmetric", 3, 3, 5, 3, -2),
    Sketcher.Constraint("Symmetric", 2, 3, 6, 3, -2),
    Sketcher.Constraint("Symmetric", 1, 3, 7, 3, -2),
    Sketcher.Constraint("Horizontal", 1, 3, 2, 3),
    Sketcher.Constraint("Horizontal", 0, 3, 3, 3),
    Sketcher.Constraint("Vertical", 0, 3, 1, 3),
    Sketcher.Constraint("Vertical", 2, 3, 3, 3),
    Sketcher.Constraint("Diameter", 0, Q("3.2 mm")),
    Sketcher.Constraint("DistanceX", 0, 3, -1, 1, Q("95 mm")),
    Sketcher.Constraint("DistanceX", 2, 3, -1, 1, Q("55 mm")),
    Sketcher.Constraint("DistanceY", 0, 3, 1, 3, Q("38 mm")),
    Sketcher.Constraint("DistanceY", 0, 3, -1, 1, Q("72.067232 mm")),
])
pocket7 = body.newObject("PartDesign::Pocket", "Pocket006")
pocket7.Profile = sketch9
pocket7.Length = 4

doc.recompute()
